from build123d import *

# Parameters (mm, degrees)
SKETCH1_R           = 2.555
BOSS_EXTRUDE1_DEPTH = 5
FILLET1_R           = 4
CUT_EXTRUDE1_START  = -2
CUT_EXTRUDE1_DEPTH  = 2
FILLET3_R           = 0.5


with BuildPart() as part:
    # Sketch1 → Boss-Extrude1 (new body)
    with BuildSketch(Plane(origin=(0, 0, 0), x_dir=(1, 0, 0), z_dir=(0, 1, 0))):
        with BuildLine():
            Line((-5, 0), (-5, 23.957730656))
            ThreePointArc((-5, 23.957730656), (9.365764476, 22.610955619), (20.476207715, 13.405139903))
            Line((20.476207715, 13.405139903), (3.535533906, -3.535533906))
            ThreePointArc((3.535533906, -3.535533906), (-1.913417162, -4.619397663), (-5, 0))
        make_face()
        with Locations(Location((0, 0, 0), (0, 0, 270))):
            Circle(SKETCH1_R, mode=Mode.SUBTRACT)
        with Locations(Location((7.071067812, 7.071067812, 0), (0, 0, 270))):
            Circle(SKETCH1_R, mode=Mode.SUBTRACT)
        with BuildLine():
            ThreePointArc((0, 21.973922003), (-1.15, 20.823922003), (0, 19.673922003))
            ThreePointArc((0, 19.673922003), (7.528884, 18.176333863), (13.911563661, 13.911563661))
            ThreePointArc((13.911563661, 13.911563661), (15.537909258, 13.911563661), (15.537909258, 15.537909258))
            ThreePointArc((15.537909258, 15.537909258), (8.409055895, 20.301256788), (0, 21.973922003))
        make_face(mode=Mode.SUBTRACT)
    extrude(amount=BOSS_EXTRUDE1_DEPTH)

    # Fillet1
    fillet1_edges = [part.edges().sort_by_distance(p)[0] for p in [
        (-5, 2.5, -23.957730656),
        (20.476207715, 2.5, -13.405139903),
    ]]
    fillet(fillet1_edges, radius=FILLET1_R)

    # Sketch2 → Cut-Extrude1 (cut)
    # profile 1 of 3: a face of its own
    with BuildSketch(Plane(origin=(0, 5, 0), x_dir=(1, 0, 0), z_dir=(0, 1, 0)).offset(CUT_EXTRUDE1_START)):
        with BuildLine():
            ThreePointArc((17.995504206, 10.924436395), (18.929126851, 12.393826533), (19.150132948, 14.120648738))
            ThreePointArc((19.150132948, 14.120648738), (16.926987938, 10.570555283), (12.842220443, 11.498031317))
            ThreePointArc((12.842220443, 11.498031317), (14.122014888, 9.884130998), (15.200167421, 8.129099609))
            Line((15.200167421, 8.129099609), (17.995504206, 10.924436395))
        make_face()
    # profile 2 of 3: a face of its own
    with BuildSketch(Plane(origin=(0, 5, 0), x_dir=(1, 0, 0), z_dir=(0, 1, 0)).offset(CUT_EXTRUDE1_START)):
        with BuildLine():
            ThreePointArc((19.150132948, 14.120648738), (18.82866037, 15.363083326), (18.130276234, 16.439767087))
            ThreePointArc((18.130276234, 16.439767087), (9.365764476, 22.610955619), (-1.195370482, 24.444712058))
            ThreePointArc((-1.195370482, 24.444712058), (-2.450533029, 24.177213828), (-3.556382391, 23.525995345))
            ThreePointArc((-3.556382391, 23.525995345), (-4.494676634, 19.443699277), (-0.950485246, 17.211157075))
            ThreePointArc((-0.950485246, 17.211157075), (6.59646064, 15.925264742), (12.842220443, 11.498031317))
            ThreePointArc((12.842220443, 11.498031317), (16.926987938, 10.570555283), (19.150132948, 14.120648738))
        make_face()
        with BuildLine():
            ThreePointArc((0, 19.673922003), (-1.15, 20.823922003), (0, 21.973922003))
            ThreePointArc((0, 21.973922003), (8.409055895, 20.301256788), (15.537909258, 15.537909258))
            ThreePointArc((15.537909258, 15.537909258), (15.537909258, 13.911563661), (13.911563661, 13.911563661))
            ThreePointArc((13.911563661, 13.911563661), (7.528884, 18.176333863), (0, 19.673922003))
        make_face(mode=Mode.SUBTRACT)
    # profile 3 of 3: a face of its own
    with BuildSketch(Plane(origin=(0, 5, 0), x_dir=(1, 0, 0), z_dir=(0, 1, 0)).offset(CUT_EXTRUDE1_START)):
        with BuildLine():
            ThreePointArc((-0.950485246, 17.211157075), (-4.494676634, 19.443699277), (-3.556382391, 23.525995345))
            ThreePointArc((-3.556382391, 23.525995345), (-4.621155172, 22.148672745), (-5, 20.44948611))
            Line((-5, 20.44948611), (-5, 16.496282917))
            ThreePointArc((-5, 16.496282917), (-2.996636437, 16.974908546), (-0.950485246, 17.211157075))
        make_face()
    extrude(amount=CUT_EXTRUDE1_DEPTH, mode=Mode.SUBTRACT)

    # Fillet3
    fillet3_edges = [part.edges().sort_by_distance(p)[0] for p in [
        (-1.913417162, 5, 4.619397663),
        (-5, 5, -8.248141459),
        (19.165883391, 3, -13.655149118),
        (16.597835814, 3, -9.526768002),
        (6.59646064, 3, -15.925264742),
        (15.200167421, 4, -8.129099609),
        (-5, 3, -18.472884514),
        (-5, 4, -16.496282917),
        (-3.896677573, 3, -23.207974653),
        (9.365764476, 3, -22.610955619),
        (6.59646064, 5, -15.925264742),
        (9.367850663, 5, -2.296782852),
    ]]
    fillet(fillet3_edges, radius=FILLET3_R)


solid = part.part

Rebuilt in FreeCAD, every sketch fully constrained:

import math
import FreeCAD as App
import Part
import Sketcher
from FreeCAD import Vector
Q = App.Units.Quantity


def edges_at(feature, points):
    """Names of the edges that pass closest to the given points."""
    edges = feature.Shape.Edges
    near = lambda p: min(range(len(edges)), key=lambda i: edges[i].distToShape(Part.Vertex(*p))[0])
    return sorted({f"Edge{near(p) + 1}" for p in points})

doc = App.newDocument("Part")
body = doc.addObject("PartDesign::Body", "Body")

# Sketch on XZ plane
sketch1 = doc.addObject("Sketcher::SketchObject", "Sketch")
body.addObject(sketch1)
sketch1.AttachmentSupport = (doc.XZ_Plane, [""])
sketch1.MapMode = "FlatFace"
sketch1.addGeometry(Part.LineSegment(Vector(-5, -24, 0), Vector(-5, 0, 0)), False)
sketch1.addGeometry(Part.ArcOfCircle(Part.Circle(Vector(0, 0, 0), Vector(0, 0, 1), 5), math.radians(45), math.radians(180)), False)
sketch1.addGeometry(Part.LineSegment(Vector(3.5, 3.5, 0), Vector(20.5, -13.4, 0)), False)
sketch1.addGeometry(Part.ArcOfCircle(Part.Circle(Vector(0, 0, 0), Vector(0, 0, 1), 24.5), math.radians(-102), math.radians(-33)), False)
sketch1.addGeometry(Part.Circle(Vector(7.1, -7.1, 0), Vector(0, 0, 1), 2.6), False)
sketch1.addGeometry(Part.Circle(Vector(0, 0, 0), Vector(0, 0, 1), 2.6), False)
sketch1.addGeometry(Part.ArcOfCircle(Part.Circle(Vector(0, 0, 0), Vector(0, 0, 1), 22), math.radians(-90), math.radians(-45)), False)
sketch1.addGeometry(Part.ArcOfCircle(Part.Circle(Vector(14.7, -14.7, 0), Vector(0, 0, 1), 1.1), math.radians(-45), math.radians(135)), False)
sketch1.addGeometry(Part.ArcOfCircle(Part.Circle(Vector(0, 0, 0), Vector(0, 0, 1), 19.7), math.radians(-90), math.radians(-45)), False)
sketch1.addGeometry(Part.ArcOfCircle(Part.Circle(Vector(0, -20.8, 0), Vector(0, 0, 1), 1.1), math.radians(90), math.radians(270)), False)
sketch1.addConstraint(Sketcher.Constraint("Tangent", 0, 2, 1, 2))
sketch1.addConstraint(Sketcher.Constraint("Tangent", 1, 1, 2, 1))
sketch1.addConstraint(Sketcher.Constraint("Coincident", 2, 2, 3, 2))
sketch1.addConstraint(Sketcher.Constraint("Coincident", 3, 1, 0, 1))
sketch1.addConstraint(Sketcher.Constraint("Tangent", 6, 2, 7, 1))
sketch1.addConstraint(Sketcher.Constraint("Tangent", 7, 2, 8, 2))
sketch1.addConstraint(Sketcher.Constraint("Tangent", 8, 1, 9, 1))
sketch1.addConstraint(Sketcher.Constraint("Tangent", 9, 2, 6, 1))
sketch1.addConstraint(Sketcher.Constraint("Vertical", 0))
sketch1.addConstraint(Sketcher.Constraint("Coincident", 1, 3, -1, 1))
sketch1.addConstraint(Sketcher.Constraint("Coincident", 3, 3, -1, 1))
sketch1.addConstraint(Sketcher.Constraint("Coincident", 5, 3, -1, 1))
sketch1.addConstraint(Sketcher.Constraint("Coincident", 6, 3, -1, 1))
sketch1.addConstraint(Sketcher.Constraint("Coincident", 8, 3, -1, 1))
sketch1.addConstraint(Sketcher.Constraint("Equal", 4, 5))
sketch1.addConstraint(Sketcher.Constraint("PointOnObject", 9, 3, -2))
sketch1.addConstraint(Sketcher.Constraint("Radius", 1, 5.0))
sketch1.addConstraint(Sketcher.Constraint("Diameter", 4, 5.11))
sketch1.addConstraint(Sketcher.Constraint("Angle", 2, Q("-45 deg")))
sketch1.addConstraint(Sketcher.Constraint("Radius", 7, 1.15))
sketch1.addConstraint(Sketcher.Constraint("Radius", 3, 24.473922))
sketch1.addConstraint(Sketcher.Constraint("Radius", 6, 21.973922))
sketch1.addConstraint(Sketcher.Constraint("DistanceX", 6, 2, 2, 2, 4.938298))
sketch1.addConstraint(Sketcher.Constraint("DistanceX", 4, 3, 7, 3, 7.653669))
sketch1.addConstraint(Sketcher.Constraint("DistanceY", 7, 3, 4, 3, 7.653669))
pad1 = doc.addObject("PartDesign::Pad", "Pad")
body.addObject(pad1)
pad1.Profile = sketch1
pad1.Length = 5
pad1.Reversed = True
doc.recompute()

fillet = doc.addObject("PartDesign::Fillet", "Fillet")
body.addObject(fillet)
fillet.Base = (pad1, edges_at(pad1, [(-5, 2.5, -23.958), (20.476, 2.5, -13.405)]))
fillet.Radius = 4

# Sketch on XZ plane
sketch2 = doc.addObject("Sketcher::SketchObject", "Sketch001")
body.addObject(sketch2)
sketch2.AttachmentSupport = (doc.XZ_Plane, [""])
sketch2.MapMode = "FlatFace"
sketch2.AttachmentOffset = App.Placement(Vector(0, 0, -3), App.Rotation())
sketch2.addGeometry(Part.ArcOfCircle(Part.Circle(Vector(15.2, -13.8, 0), Vector(0, 0, 1), 4), math.radians(-5), math.radians(45)), False)
sketch2.addGeometry(Part.ArcOfCircle(Part.Circle(Vector(15.2, -13.8, 0), Vector(0, 0, 1), 4), math.radians(-42), math.radians(-5)), False)
sketch2.addGeometry(Part.ArcOfCircle(Part.Circle(Vector(0, 0, 0), Vector(0, 0, 1), 24.5), math.radians(-93), math.radians(-42)), False)
sketch2.addGeometry(Part.ArcOfCircle(Part.Circle(Vector(-1, -20.4, 0), Vector(0, 0, 1), 4), math.radians(-130), math.radians(-93)), False)
sketch2.addGeometry(Part.ArcOfCircle(Part.Circle(Vector(-1, -20.4, 0), Vector(0, 0, 1), 4), math.radians(180), math.radians(230)), False)
sketch2.addGeometry(Part.LineSegment(Vector(-5, -20.4, 0), Vector(-5, -16.5, 0)), False)
sketch2.addGeometry(Part.ArcOfCircle(Part.Circle(Vector(0, 0, 0), Vector(0, 0, 1), 17.2), math.radians(-106.86), math.radians(-93.16)), False)
sketch2.addGeometry(Part.ArcOfCircle(Part.Circle(Vector(0, 0, 0), Vector(0, 0, 1), 17.2), math.radians(-93), math.radians(-42)), False)
sketch2.addGeometry(Part.ArcOfCircle(Part.Circle(Vector(0, 0, 0), Vector(0, 0, 1), 17.2), math.radians(-41.84), math.radians(-28.14)), False)
sketch2.addGeometry(Part.LineSegment(Vector(15.2, -8.1, 0), Vector(18, -10.9, 0)), False)
sketch2.addGeometry(Part.ArcOfCircle(Part.Circle(Vector(0, -20.8, 0), Vector(0, 0, 1), 1.1), math.radians(90), math.radians(270)), False)
sketch2.addGeometry(Part.ArcOfCircle(Part.Circle(Vector(0, 0, 0), Vector(0, 0, 1), 22), math.radians(-90), math.radians(-45)), False)
sketch2.addGeometry(Part.ArcOfCircle(Part.Circle(Vector(14.7, -14.7, 0), Vector(0, 0, 1), 1.1), math.radians(-45), math.radians(135)), False)
sketch2.addGeometry(Part.ArcOfCircle(Part.Circle(Vector(0, 0, 0), Vector(0, 0, 1), 19.7), math.radians(-90), math.radians(-45)), False)
sketch2.addConstraint(Sketcher.Constraint("Tangent", 0, 1, 1, 2))
sketch2.addConstraint(Sketcher.Constraint("Tangent", 1, 1, 2, 2))
sketch2.addConstraint(Sketcher.Constraint("Tangent", 2, 1, 3, 2))
sketch2.addConstraint(Sketcher.Constraint("Tangent", 3, 1, 4, 2))
sketch2.addConstraint(Sketcher.Constraint("Tangent", 4, 1, 5, 1))
sketch2.addConstraint(Sketcher.Constraint("Coincident", 5, 2, 6, 1))
sketch2.addConstraint(Sketcher.Constraint("Tangent", 6, 2, 7, 1))
sketch2.addConstraint(Sketcher.Constraint("Tangent", 7, 2, 8, 1))
sketch2.addConstraint(Sketcher.Constraint("Coincident", 8, 2, 9, 1))
sketch2.addConstraint(Sketcher.Constraint("Tangent", 9, 2, 0, 2))
sketch2.addConstraint(Sketcher.Constraint("Tangent", 10, 2, 11, 1))
sketch2.addConstraint(Sketcher.Constraint("Tangent", 11, 2, 12, 1))
sketch2.addConstraint(Sketcher.Constraint("Tangent", 12, 2, 13, 2))
sketch2.addConstraint(Sketcher.Constraint("Tangent", 13, 1, 10, 1))
sketch2.addConstraint(Sketcher.Constraint("Vertical", 5))
sketch2.addConstraint(Sketcher.Constraint("Coincident", 2, 3, -1, 1))
sketch2.addConstraint(Sketcher.Constraint("Coincident", 6, 3, -1, 1))
sketch2.addConstraint(Sketcher.Constraint("Coincident", 8, 3, -1, 1))
sketch2.addConstraint(Sketcher.Constraint("Coincident", 11, 3, -1, 1))
sketch2.addConstraint(Sketcher.Constraint("Coincident", 13, 3, -1, 1))
sketch2.addConstraint(Sketcher.Constraint("Equal", 0, 1))
sketch2.addConstraint(Sketcher.Constraint("Equal", 1, 3))
sketch2.addConstraint(Sketcher.Constraint("Equal", 3, 4))
sketch2.addConstraint(Sketcher.Constraint("PointOnObject", 10, 3, -2))
sketch2.addConstraint(Sketcher.Constraint("Radius", 0, 4.0))
sketch2.addConstraint(Sketcher.Constraint("Angle", 9, Q("-45 deg")))
sketch2.addConstraint(Sketcher.Constraint("Radius", 10, 1.15))
sketch2.addConstraint(Sketcher.Constraint("DistanceX", 3, 3, -1, 1, 1.0))
sketch2.addConstraint(Sketcher.Constraint("Radius", 2, 24.473922))
sketch2.addConstraint(Sketcher.Constraint("Radius", 6, 17.237382))
sketch2.addConstraint(Sketcher.Constraint("Radius", 11, 21.973922))
sketch2.addConstraint(Sketcher.Constraint("DistanceY", 8, 2, -1, 1, 8.1291))
sketch2.addConstraint(Sketcher.Constraint("DistanceY", 12, 3, 9, 2, 3.8003))
sketch2.addConstraint(Sketcher.Constraint("DistanceY", 0, 1, -1, 1, 14.120649))
sketch2.addConstraint(Sketcher.Constraint("DistanceX", -1, 1, 7, 2, 12.84222))
sketch2.addConstraint(Sketcher.Constraint("DistanceX", 3, 1, 2, 1, 2.361012))
sketch2.addConstraint(Sketcher.Constraint("DistanceY", 4, 3, 6, 2, 3.238329))
pocket1 = doc.addObject("PartDesign::Pocket", "Pocket")
body.addObject(pocket1)
pocket1.Profile = sketch2
pocket1.Length = 2
doc.recompute()

fillet2 = doc.addObject("PartDesign::Fillet", "Fillet001")
body.addObject(fillet2)
fillet2.Base = (pocket1, edges_at(pocket1, [
    (-1.913, 5, 4.619),
    (-5, 5, -8.248),
    (18.929, 3, -12.394),
    (16.598, 3, -9.527),
    (6.596, 3, -15.925),
    (15.2, 4, -8.129),
    (-5, 3, -18.473),
    (-5, 4, -16.496),
    (-4.621, 3, -22.149),
    (9.366, 3, -22.611),
    (6.596, 5, -15.925),
    (9.368, 5, -2.297),
]))
fillet2.Radius = 0.5

doc.recompute()
